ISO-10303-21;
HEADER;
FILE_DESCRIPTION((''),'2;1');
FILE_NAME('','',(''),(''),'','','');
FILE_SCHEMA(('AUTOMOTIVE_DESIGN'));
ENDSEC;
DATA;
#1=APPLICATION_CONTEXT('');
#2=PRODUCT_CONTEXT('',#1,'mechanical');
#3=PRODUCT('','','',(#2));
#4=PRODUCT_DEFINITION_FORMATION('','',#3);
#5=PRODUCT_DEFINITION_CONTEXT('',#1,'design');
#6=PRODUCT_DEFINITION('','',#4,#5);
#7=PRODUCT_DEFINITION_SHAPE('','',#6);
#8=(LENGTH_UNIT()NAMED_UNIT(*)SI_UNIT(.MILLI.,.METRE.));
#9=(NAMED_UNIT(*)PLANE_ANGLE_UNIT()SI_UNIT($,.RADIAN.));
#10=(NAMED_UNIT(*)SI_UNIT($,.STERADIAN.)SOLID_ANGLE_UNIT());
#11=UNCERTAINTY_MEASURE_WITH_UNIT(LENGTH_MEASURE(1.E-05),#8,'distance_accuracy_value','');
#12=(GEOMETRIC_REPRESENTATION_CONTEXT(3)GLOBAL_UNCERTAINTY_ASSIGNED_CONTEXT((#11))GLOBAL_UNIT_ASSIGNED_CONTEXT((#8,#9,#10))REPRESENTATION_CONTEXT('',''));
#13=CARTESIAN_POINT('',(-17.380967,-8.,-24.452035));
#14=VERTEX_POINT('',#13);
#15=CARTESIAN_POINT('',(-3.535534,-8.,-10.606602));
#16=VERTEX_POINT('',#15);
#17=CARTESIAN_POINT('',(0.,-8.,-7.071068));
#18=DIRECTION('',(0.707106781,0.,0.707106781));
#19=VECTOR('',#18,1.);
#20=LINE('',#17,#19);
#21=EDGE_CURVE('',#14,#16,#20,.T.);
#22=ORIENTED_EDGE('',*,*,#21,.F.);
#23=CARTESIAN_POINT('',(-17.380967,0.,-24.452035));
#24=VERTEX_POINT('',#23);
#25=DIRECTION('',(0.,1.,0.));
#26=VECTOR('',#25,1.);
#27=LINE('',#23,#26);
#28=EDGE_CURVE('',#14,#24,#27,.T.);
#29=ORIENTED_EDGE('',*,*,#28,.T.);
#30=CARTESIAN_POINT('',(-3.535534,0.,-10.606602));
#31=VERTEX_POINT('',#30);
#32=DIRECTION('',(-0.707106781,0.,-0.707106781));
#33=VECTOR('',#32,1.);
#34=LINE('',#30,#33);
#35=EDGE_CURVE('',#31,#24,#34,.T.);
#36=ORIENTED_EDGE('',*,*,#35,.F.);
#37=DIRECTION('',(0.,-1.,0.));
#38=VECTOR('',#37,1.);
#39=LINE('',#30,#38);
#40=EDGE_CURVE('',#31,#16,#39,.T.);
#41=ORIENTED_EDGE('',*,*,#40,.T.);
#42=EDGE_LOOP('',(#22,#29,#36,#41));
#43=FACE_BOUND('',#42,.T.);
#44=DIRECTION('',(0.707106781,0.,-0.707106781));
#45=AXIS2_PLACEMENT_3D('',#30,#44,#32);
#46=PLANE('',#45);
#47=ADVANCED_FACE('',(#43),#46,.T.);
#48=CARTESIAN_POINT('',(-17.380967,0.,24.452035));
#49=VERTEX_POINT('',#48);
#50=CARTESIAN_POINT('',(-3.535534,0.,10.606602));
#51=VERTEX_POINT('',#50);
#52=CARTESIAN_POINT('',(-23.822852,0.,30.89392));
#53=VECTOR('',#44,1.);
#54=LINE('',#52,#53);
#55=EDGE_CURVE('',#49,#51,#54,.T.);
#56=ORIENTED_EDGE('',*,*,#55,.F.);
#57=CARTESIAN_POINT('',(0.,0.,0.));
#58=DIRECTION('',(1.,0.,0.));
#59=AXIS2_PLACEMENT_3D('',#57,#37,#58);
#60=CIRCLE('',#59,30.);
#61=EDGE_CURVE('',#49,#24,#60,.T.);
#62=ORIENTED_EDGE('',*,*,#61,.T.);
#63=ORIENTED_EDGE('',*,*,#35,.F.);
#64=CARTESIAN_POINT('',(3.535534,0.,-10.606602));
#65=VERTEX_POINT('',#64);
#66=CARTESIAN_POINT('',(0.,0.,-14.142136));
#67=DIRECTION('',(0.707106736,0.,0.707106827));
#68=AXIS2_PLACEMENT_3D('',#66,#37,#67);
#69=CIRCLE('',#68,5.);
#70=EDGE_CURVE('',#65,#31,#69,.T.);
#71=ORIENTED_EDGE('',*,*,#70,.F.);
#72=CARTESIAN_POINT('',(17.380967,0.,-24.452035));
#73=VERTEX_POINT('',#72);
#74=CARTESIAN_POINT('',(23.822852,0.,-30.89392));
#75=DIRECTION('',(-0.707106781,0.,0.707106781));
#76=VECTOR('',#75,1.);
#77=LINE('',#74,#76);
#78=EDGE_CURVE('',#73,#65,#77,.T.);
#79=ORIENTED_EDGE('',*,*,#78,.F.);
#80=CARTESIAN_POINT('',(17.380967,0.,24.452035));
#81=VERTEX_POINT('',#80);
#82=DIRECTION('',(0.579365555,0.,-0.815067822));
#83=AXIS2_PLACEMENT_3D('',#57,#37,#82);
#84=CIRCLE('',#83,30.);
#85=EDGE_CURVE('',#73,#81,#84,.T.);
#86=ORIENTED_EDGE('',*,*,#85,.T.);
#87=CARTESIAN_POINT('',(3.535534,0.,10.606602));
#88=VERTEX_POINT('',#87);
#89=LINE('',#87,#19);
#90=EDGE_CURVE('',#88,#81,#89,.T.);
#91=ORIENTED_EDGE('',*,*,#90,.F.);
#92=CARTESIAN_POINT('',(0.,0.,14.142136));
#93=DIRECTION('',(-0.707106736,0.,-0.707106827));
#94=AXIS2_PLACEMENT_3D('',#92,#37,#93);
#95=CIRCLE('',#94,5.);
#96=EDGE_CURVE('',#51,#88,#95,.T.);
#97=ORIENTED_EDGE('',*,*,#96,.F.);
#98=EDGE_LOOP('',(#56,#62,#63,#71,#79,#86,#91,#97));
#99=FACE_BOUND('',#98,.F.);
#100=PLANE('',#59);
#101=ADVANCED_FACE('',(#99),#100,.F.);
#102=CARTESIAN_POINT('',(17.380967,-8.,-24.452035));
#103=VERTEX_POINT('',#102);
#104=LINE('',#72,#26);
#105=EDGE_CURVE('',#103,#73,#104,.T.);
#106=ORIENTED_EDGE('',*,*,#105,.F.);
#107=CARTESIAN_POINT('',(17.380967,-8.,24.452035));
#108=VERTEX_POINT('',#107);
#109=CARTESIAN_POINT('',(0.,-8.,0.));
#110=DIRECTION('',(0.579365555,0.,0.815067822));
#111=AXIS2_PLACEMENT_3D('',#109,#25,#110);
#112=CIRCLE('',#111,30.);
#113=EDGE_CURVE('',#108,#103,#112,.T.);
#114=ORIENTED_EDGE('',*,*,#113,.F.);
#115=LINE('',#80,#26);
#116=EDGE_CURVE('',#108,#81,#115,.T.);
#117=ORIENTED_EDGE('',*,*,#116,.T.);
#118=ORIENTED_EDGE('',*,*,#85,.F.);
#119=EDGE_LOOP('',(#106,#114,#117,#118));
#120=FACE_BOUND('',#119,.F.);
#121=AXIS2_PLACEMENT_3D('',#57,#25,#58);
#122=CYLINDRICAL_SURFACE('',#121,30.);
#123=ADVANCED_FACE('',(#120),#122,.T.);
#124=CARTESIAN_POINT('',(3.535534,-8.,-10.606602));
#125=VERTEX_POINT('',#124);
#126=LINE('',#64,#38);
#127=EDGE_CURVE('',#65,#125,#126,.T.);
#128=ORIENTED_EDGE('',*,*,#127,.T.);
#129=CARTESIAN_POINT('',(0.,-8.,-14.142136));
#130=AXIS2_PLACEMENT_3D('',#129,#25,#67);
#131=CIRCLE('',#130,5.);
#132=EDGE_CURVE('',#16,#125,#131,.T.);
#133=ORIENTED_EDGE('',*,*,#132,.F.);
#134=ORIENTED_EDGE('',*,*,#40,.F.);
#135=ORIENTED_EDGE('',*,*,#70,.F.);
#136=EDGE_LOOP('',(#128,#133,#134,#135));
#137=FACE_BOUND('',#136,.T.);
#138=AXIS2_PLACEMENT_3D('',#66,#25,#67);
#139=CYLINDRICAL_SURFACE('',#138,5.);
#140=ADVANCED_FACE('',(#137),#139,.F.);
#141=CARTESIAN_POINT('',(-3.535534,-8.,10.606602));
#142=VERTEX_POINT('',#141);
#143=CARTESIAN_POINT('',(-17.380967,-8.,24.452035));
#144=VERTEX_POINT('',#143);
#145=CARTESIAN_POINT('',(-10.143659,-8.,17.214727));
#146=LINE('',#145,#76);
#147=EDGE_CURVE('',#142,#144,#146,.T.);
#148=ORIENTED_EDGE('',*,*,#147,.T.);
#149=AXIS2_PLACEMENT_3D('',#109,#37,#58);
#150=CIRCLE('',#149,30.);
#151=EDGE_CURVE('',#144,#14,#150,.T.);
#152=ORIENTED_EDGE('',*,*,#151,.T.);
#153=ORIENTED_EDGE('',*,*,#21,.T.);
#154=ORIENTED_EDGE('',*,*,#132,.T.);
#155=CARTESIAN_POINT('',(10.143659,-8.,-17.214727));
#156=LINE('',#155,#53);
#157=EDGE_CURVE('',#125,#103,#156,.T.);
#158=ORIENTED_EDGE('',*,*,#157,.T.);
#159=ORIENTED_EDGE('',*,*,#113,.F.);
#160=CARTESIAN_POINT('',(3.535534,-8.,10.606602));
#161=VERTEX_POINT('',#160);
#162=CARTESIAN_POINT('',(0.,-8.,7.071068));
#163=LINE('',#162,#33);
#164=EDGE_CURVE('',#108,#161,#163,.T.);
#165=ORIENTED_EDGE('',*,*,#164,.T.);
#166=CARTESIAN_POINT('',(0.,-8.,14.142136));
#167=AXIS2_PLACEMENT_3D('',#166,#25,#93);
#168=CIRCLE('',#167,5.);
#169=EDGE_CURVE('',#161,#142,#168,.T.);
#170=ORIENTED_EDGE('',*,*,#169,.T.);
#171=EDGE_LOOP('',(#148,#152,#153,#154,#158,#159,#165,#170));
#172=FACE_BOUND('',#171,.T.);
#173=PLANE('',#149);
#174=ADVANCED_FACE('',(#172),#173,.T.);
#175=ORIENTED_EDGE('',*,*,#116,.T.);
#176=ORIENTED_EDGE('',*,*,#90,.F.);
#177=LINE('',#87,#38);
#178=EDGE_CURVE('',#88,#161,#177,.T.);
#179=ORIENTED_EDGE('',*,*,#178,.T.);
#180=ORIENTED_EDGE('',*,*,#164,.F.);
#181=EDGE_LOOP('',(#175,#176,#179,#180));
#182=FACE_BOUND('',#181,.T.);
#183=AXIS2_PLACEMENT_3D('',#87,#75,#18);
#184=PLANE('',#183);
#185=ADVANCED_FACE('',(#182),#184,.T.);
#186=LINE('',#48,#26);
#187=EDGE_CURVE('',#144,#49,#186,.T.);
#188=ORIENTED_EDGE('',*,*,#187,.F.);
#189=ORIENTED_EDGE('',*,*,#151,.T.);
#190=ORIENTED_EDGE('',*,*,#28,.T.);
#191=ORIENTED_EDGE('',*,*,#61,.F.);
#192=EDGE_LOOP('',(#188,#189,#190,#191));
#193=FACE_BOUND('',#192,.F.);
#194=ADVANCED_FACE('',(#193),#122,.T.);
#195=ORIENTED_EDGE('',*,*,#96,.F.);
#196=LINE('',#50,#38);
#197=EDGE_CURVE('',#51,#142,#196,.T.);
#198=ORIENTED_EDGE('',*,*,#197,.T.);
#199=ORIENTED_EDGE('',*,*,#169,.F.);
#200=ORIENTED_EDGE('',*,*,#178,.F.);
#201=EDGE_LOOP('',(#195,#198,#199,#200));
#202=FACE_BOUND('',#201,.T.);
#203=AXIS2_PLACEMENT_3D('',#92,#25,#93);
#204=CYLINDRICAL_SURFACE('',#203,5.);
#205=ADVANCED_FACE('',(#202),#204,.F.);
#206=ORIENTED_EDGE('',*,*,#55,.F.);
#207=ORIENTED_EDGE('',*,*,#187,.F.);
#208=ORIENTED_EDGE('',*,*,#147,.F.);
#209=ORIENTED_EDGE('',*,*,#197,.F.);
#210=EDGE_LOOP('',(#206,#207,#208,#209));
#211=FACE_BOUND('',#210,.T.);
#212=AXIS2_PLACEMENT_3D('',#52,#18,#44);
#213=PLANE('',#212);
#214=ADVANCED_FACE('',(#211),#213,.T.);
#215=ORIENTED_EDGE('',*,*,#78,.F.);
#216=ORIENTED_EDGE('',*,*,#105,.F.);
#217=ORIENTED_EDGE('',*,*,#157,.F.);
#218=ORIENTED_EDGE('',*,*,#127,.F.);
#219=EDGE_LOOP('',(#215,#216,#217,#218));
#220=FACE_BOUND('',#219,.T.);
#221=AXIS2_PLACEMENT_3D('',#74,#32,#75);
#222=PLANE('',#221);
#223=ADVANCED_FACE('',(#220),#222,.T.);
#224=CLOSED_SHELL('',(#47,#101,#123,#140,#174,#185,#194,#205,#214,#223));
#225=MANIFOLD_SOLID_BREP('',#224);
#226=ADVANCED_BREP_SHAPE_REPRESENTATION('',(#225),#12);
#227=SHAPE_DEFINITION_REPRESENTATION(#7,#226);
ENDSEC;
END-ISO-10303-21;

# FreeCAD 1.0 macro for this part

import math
import FreeCAD as App
import Part
import Sketcher

V = App.Vector

doc = App.newDocument("Part")
body = doc.addObject("PartDesign::Body", "Body")

# Sketch on XZ plane
sketch1 = body.newObject("Sketcher::SketchObject", "Sketch")
sketch1.AttachmentSupport = (doc.getObject("XZ_Plane"), [""])
sketch1.MapMode = "FlatFace"
sketch1.addGeometry(Part.Circle(V(0, 0, 0), V(0, 0, 1), 30), False)
sketch1.addConstraint(Sketcher.Constraint("Coincident", 0, 3, -1, 1))
sketch1.addConstraint(Sketcher.Constraint("Diameter", 0, 60.0))
pad1 = body.newObject("PartDesign::Pad", "Pad")
pad1.Profile = sketch1
pad1.Length = 8

# Sketch on XZ plane
sketch2 = body.newObject("Sketcher::SketchObject", "Sketch001")
sketch2.AttachmentSupport = (doc.getObject("XZ_Plane"), [""])
sketch2.MapMode = "FlatFace"
sketch2.addGeometry(Part.ArcOfCircle(Part.Circle(V(0, 14, 0), V(0, 0, 1), 5), math.radians(-135), math.radians(-45)), False)
sketch2.addGeometry(Part.LineSegment(V(4, 11, 0), V(24, 31, 0)), False)
sketch2.addGeometry(Part.LineSegment(V(24, 31, 0), V(-24, 31, 0)), False)
sketch2.addGeometry(Part.LineSegment(V(-24, 31, 0), V(-4, 11, 0)), False)
sketch2.addGeometry(Part.ArcOfCircle(Part.Circle(V(0, -14, 0), V(0, 0, 1), 5), math.radians(45), math.radians(135)), False)
sketch2.addGeometry(Part.LineSegment(V(-4, -11, 0), V(-24, -31, 0)), False)
sketch2.addGeometry(Part.LineSegment(V(-24, -31, 0), V(24, -31, 0)), False)
sketch2.addGeometry(Part.LineSegment(V(24, -31, 0), V(4, -11, 0)), False)
sketch2.addConstraint(Sketcher.Constraint("Tangent", 0, 2, 1, 1))
sketch2.addConstraint(Sketcher.Constraint("Coincident", 1, 2, 2, 1))
sketch2.addConstraint(Sketcher.Constraint("Coincident", 2, 2, 3, 1))
sketch2.addConstraint(Sketcher.Constraint("Tangent", 3, 2, 0, 1))
sketch2.addConstraint(Sketcher.Constraint("Tangent", 4, 2, 5, 1))
sketch2.addConstraint(Sketcher.Constraint("Coincident", 5, 2, 6, 1))
sketch2.addConstraint(Sketcher.Constraint("Coincident", 6, 2, 7, 1))
sketch2.addConstraint(Sketcher.Constraint("Tangent", 7, 2, 4, 1))
sketch2.addConstraint(Sketcher.Constraint("Horizontal", 2))
sketch2.addConstraint(Sketcher.Constraint("Horizontal", 6))
sketch2.addConstraint(Sketcher.Constraint("Equal", 0, 4))
sketch2.addConstraint(Sketcher.Constraint("Symmetric", 0, 3, 4, 3, -1, 1))
sketch2.addConstraint(Sketcher.Constraint("Symmetric", 1, 2, 5, 2, -1, 1))
sketch2.addConstraint(Sketcher.Constraint("Symmetric", 0, 2, 3, 2, -2))
sketch2.addConstraint(Sketcher.Constraint("Perpendicular", 1, 3))
sketch2.addConstraint(Sketcher.Constraint("Perpendicular", 5, 7))
sketch2.addConstraint(Sketcher.Constraint("Radius", 0, 5.0))
sketch2.addConstraint(Sketcher.Constraint("Distance", 1, 28.6906))
sketch2.addConstraint(Sketcher.Constraint("DistanceY", -1, 1, 1, 2, 30.89392))
pocket1 = body.newObject("PartDesign::Pocket", "Pocket")
pocket1.Profile = sketch2
pocket1.Length = 16.1
pocket1.Reversed = True

doc.recompute()
